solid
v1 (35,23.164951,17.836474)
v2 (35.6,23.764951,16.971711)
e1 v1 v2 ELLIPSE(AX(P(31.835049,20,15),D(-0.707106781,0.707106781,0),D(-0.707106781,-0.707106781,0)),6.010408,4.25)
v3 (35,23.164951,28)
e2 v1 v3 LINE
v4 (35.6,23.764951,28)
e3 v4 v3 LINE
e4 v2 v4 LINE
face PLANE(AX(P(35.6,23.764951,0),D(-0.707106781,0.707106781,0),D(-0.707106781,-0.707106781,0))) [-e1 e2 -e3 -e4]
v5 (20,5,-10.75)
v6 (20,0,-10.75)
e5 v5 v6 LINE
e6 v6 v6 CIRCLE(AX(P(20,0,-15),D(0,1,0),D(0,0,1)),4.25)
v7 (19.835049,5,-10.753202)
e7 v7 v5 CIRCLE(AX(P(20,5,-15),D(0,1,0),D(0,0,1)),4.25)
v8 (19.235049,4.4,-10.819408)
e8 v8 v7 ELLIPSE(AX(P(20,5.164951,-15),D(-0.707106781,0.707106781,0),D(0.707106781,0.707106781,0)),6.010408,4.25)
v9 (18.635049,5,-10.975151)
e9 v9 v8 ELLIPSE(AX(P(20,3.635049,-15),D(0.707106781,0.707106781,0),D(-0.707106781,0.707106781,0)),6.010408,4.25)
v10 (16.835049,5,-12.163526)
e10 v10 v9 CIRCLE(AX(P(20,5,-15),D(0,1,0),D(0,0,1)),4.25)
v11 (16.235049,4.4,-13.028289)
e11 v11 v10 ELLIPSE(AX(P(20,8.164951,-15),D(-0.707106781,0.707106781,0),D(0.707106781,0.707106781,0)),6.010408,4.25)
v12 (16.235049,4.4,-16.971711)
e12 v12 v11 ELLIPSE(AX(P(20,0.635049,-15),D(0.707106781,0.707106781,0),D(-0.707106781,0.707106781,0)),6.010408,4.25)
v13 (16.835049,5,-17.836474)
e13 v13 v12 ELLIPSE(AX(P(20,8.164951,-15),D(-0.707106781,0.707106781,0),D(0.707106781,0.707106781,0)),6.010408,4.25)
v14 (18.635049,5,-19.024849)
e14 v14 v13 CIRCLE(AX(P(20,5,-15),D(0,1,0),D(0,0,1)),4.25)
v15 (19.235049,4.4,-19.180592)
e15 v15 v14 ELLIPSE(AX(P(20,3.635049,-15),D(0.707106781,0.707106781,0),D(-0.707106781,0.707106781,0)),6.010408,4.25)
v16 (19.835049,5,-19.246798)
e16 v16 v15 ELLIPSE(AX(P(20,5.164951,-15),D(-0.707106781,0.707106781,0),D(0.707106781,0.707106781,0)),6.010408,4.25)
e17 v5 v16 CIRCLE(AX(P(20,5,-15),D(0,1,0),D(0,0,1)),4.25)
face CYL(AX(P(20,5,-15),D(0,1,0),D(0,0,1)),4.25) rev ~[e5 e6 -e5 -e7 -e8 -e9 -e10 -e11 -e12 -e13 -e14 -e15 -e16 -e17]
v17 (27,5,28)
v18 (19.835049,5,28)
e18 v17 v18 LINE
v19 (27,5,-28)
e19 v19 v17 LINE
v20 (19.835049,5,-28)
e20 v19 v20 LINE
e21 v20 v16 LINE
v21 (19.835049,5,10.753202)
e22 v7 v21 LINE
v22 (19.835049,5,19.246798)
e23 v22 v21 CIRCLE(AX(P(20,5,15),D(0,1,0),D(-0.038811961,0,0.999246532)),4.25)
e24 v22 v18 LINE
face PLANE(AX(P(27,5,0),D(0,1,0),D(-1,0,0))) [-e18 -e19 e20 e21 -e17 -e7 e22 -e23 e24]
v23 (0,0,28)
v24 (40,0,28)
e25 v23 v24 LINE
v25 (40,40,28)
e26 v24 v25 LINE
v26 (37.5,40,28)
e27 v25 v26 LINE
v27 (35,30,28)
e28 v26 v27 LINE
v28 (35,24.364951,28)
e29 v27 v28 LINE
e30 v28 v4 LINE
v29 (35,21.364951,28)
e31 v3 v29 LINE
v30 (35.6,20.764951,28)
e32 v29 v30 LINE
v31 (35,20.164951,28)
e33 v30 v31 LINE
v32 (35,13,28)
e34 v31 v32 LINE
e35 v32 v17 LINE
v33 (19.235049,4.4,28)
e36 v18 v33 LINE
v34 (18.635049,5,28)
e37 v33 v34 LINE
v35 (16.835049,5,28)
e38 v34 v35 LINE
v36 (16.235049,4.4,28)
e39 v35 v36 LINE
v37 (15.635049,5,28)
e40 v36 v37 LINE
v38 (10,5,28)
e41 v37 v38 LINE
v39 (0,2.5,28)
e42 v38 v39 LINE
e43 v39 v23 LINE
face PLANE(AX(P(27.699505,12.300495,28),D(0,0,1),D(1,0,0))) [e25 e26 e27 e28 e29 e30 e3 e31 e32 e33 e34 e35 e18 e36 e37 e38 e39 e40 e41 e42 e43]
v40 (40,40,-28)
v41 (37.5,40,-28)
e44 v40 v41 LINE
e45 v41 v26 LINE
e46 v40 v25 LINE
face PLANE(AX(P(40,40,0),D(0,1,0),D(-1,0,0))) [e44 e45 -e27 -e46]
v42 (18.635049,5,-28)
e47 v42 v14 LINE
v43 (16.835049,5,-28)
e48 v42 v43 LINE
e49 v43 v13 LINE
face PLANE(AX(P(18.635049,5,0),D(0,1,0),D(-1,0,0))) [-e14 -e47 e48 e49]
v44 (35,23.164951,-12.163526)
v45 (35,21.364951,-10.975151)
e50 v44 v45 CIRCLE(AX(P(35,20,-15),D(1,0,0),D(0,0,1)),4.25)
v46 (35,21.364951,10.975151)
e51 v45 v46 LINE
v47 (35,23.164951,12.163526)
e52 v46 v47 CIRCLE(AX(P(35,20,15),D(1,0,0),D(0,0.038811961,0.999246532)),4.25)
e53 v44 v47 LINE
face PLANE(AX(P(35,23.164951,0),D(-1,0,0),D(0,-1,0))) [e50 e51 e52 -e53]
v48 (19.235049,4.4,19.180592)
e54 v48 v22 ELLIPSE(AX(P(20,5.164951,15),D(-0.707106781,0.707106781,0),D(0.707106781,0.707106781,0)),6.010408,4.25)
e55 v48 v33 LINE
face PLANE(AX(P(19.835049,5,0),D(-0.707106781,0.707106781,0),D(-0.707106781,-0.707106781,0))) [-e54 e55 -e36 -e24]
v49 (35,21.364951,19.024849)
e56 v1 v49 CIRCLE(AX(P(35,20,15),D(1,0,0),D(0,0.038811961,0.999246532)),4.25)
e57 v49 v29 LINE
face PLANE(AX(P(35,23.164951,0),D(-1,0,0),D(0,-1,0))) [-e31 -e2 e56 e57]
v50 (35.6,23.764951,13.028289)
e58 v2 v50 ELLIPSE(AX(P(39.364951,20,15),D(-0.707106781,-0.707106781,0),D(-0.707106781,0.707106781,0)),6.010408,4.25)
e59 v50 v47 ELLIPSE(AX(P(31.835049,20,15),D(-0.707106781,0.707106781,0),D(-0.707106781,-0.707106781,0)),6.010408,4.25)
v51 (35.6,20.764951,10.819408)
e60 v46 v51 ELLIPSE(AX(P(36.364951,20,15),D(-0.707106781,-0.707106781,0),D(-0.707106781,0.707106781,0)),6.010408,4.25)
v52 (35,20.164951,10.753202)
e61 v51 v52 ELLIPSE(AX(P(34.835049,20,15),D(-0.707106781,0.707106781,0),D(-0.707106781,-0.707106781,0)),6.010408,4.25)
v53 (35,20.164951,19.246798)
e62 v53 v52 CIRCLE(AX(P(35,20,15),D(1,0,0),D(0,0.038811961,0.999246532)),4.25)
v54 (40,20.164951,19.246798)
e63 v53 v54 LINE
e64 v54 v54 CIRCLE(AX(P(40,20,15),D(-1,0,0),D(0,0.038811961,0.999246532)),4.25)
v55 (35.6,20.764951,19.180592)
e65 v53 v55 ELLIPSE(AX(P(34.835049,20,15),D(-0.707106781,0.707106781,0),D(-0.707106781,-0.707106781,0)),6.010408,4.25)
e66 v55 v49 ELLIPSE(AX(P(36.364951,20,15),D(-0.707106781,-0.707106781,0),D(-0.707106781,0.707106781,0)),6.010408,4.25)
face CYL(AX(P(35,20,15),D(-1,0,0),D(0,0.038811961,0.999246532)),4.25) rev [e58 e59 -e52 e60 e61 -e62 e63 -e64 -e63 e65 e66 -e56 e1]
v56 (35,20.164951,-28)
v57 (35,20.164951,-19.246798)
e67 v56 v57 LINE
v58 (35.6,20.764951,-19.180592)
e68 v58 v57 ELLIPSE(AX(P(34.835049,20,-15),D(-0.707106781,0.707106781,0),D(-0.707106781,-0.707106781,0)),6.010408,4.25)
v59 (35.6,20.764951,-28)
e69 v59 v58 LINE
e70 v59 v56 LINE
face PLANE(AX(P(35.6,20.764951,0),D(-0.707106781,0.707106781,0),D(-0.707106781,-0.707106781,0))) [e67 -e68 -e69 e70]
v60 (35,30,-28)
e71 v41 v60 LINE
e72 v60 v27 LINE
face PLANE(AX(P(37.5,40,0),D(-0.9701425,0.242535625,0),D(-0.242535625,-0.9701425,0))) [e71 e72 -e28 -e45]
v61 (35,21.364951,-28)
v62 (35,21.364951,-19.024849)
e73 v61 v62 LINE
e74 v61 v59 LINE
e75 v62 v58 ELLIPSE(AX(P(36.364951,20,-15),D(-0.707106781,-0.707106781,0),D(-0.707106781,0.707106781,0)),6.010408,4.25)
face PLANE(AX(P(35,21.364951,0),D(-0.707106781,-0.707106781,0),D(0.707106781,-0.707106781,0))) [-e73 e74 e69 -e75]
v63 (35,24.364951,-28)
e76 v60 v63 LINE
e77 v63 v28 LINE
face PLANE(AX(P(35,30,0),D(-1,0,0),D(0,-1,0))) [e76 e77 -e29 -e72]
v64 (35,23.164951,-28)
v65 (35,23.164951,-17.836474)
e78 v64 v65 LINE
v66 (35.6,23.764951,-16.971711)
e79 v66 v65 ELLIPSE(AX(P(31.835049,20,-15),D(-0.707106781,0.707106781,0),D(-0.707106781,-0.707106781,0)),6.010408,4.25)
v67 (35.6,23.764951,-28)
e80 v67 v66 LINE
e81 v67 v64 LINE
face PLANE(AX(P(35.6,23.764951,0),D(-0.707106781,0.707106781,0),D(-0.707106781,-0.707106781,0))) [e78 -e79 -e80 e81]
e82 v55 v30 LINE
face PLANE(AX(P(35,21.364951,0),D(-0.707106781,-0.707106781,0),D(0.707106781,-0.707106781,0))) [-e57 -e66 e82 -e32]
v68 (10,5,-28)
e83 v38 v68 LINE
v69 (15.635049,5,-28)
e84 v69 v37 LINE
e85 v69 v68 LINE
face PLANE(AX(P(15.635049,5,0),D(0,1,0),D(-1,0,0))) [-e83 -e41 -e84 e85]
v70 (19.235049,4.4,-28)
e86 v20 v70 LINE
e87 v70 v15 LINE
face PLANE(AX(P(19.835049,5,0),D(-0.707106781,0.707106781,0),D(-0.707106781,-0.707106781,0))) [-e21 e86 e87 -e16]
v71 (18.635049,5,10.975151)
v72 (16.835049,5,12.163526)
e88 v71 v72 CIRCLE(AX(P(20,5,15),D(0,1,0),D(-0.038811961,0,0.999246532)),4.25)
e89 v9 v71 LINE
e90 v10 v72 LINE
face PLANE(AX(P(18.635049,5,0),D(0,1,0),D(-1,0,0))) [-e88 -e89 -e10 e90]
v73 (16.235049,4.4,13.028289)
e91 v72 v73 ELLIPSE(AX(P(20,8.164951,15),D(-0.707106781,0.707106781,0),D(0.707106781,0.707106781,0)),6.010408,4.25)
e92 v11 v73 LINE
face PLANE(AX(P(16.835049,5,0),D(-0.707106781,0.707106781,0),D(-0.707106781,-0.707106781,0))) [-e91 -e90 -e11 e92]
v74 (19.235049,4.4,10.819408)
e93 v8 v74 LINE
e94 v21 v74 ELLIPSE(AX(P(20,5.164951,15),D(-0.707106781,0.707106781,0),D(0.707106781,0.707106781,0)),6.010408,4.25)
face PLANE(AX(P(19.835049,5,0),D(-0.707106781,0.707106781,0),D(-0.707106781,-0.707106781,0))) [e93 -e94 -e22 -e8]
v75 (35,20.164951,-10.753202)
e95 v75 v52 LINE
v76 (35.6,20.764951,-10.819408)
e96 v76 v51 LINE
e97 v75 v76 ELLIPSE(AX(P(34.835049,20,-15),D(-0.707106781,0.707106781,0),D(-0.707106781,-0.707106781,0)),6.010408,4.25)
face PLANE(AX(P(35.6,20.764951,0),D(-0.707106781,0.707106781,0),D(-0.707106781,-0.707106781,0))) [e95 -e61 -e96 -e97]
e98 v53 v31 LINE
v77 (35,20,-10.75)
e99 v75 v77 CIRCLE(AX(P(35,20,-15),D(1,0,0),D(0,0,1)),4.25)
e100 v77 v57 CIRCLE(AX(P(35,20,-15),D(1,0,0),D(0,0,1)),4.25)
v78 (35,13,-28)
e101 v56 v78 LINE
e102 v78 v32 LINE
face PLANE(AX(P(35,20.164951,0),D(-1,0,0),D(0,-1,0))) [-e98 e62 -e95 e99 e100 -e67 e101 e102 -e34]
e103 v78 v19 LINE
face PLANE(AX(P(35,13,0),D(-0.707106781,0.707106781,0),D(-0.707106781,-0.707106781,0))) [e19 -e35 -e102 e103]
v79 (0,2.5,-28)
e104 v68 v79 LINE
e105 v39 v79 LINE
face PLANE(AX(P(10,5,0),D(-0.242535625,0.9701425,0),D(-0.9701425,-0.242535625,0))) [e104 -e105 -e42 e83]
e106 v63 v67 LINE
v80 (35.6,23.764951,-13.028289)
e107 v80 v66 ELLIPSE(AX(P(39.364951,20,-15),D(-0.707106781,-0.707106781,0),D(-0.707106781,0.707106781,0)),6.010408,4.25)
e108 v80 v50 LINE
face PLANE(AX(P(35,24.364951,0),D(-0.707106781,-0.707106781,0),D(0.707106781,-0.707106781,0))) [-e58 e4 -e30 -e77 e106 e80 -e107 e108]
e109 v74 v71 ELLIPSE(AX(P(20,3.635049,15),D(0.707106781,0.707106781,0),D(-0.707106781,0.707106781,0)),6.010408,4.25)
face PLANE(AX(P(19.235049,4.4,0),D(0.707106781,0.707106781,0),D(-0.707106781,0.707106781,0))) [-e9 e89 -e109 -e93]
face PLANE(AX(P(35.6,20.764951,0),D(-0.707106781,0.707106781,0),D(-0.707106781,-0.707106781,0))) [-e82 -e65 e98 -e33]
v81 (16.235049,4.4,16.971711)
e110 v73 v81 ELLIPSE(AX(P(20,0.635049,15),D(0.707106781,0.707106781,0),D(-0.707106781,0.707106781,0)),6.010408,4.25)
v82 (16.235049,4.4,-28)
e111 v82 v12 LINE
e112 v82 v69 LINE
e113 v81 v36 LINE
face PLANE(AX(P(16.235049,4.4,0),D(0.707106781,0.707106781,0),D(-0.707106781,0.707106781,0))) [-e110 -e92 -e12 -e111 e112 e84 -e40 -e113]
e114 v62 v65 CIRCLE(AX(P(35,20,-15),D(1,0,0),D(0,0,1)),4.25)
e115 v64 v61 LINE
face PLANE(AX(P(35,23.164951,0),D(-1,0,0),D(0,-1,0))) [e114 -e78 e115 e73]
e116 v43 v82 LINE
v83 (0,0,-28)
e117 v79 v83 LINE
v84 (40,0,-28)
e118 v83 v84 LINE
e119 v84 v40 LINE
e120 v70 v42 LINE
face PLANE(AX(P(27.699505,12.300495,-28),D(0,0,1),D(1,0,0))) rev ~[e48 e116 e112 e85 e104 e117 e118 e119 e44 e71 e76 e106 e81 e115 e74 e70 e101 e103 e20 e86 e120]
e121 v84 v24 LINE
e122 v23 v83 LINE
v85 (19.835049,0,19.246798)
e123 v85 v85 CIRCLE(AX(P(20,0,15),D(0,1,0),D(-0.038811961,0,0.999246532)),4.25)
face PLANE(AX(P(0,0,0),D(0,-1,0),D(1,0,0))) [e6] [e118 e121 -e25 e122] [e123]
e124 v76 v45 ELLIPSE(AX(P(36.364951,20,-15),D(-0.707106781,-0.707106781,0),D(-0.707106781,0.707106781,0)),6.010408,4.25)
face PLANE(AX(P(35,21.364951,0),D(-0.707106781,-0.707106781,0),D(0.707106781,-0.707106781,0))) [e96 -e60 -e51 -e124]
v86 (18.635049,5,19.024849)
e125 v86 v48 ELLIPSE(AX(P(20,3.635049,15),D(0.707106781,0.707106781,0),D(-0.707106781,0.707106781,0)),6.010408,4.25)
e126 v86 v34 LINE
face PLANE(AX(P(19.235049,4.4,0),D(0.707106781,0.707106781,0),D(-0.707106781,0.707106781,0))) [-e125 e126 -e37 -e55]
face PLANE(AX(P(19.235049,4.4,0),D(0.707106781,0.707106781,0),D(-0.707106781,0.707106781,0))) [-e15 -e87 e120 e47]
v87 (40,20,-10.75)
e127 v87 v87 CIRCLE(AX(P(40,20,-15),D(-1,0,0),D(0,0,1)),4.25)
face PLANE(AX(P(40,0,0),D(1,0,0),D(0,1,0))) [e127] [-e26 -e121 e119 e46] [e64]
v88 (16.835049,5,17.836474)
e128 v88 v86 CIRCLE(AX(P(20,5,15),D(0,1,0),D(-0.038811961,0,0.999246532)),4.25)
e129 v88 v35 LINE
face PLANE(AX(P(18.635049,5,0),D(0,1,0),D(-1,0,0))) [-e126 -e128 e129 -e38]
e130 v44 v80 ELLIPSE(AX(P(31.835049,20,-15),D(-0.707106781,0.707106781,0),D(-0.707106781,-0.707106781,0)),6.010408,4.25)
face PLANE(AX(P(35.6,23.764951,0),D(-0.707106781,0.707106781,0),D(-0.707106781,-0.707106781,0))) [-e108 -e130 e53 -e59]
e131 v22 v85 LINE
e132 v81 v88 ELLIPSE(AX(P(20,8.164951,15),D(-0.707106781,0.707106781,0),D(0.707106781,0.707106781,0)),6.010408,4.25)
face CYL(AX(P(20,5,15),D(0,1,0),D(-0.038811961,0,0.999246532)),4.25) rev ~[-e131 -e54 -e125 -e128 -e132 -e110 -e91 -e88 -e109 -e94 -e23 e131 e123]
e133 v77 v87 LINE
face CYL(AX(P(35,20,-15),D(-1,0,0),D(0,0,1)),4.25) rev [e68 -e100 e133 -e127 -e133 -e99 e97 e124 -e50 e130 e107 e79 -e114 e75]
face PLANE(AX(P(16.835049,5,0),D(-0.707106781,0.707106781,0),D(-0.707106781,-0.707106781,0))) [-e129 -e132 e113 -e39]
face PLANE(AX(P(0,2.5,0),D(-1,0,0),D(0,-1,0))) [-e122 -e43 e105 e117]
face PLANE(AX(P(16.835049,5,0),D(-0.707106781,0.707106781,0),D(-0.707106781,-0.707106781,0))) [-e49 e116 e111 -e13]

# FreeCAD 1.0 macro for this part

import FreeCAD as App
import Part
import Sketcher
from FreeCAD import Vector
Q = App.Units.Quantity

doc = App.newDocument("Part")
body = doc.addObject("PartDesign::Body", "Body")

sketch1 = body.newObject("Sketcher::SketchObject", "Sketch")
sketch1.AttachmentSupport = (doc.getObject("XY_Plane"), [""])
sketch1.MapMode = "FlatFace"
sketch1.addGeometry([
    Part.LineSegment(Vector(0, 0, 0), Vector(40, 0, 0)),
    Part.LineSegment(Vector(40, 0, 0), Vector(40, 40, 0)),
    Part.LineSegment(Vector(40, 40, 0), Vector(37.5, 40, 0)),
    Part.LineSegment(Vector(37.5, 40, 0), Vector(35, 30, 0)),
    Part.LineSegment(Vector(35, 30, 0), Vector(35, 24.4, 0)),
    Part.LineSegment(Vector(35, 24.4, 0), Vector(35.6, 23.8, 0)),
    Part.LineSegment(Vector(35.6, 23.8, 0), Vector(35, 23.2, 0)),
    Part.LineSegment(Vector(35, 23.2, 0), Vector(35, 21.4, 0)),
    Part.LineSegment(Vector(35, 21.4, 0), Vector(35.6, 20.8, 0)),
    Part.LineSegment(Vector(35.6, 20.8, 0), Vector(35, 20.2, 0)),
    Part.LineSegment(Vector(35, 20.2, 0), Vector(35, 13, 0)),
    Part.LineSegment(Vector(35, 13, 0), Vector(27, 5, 0)),
    Part.LineSegment(Vector(27, 5, 0), Vector(19.8, 5, 0)),
    Part.LineSegment(Vector(19.8, 5, 0), Vector(19.2, 4.4, 0)),
    Part.LineSegment(Vector(19.2, 4.4, 0), Vector(18.6, 5, 0)),
    Part.LineSegment(Vector(18.6, 5, 0), Vector(16.8, 5, 0)),
    Part.LineSegment(Vector(16.8, 5, 0), Vector(16.2, 4.4, 0)),
    Part.LineSegment(Vector(16.2, 4.4, 0), Vector(15.6, 5, 0)),
    Part.LineSegment(Vector(15.6, 5, 0), Vector(10, 5, 0)),
    Part.LineSegment(Vector(10, 5, 0), Vector(0, 2.5, 0)),
    Part.LineSegment(Vector(0, 2.5, 0), Vector(0, 0, 0)),
], False)
sketch1.addConstraint([
    Sketcher.Constraint("Coincident", 0, 2, 1, 1),
    Sketcher.Constraint("Coincident", 1, 2, 2, 1),
    Sketcher.Constraint("Coincident", 2, 2, 3, 1),
    Sketcher.Constraint("Coincident", 3, 2, 4, 1),
    Sketcher.Constraint("Coincident", 4, 2, 5, 1),
    Sketcher.Constraint("Coincident", 5, 2, 6, 1),
    Sketcher.Constraint("Coincident", 6, 2, 7, 1),
    Sketcher.Constraint("Coincident", 7, 2, 8, 1),
    Sketcher.Constraint("Coincident", 8, 2, 9, 1),
    Sketcher.Constraint("Coincident", 9, 2, 10, 1),
    Sketcher.Constraint("Coincident", 10, 2, 11, 1),
    Sketcher.Constraint("Coincident", 11, 2, 12, 1),
    Sketcher.Constraint("Coincident", 12, 2, 13, 1),
    Sketcher.Constraint("Coincident", 13, 2, 14, 1),
    Sketcher.Constraint("Coincident", 14, 2, 15, 1),
    Sketcher.Constraint("Coincident", 15, 2, 16, 1),
    Sketcher.Constraint("Coincident", 16, 2, 17, 1),
    Sketcher.Constraint("Coincident", 17, 2, 18, 1),
    Sketcher.Constraint("Coincident", 18, 2, 19, 1),
    Sketcher.Constraint("Coincident", 19, 2, 20, 1),
    Sketcher.Constraint("Coincident", 20, 2, 0, 1),
    Sketcher.Constraint("Horizontal", 0),
    Sketcher.Constraint("Vertical", 1),
    Sketcher.Constraint("Horizontal", 2),
    Sketcher.Constraint("Vertical", 4),
    Sketcher.Constraint("Vertical", 7),
    Sketcher.Constraint("Vertical", 10),
    Sketcher.Constraint("Horizontal", 12),
    Sketcher.Constraint("Horizontal", 15),
    Sketcher.Constraint("Horizontal", 18),
    Sketcher.Constraint("Vertical", 20),
    Sketcher.Constraint("Coincident", 20, 2, -1, 1),
    Sketcher.Constraint("Perpendicular", 5, 6),
    Sketcher.Constraint("Perpendicular", 6, 8),
    Sketcher.Constraint("Perpendicular", 8, 9),
    Sketcher.Constraint("Parallel", 9, 11),
    Sketcher.Constraint("Parallel", 11, 13),
    Sketcher.Constraint("Perpendicular", 13, 14),
    Sketcher.Constraint("Perpendicular", 14, 16),
    Sketcher.Constraint("Perpendicular", 16, 17),
    Sketcher.Constraint("Horizontal", 12, 2, 14, 2),
    Sketcher.Constraint("Horizontal", 13, 2, 16, 2),
    Sketcher.Constraint("Horizontal", 15, 2, 17, 2),
    Sketcher.Constraint("Vertical", 4, 2, 6, 2),
    Sketcher.Constraint("Vertical", 5, 2, 8, 2),
    Sketcher.Constraint("Vertical", 7, 2, 9, 2),
    Sketcher.Constraint("Equal", 0, 1),
    Sketcher.Constraint("Equal", 18, 4),
    Sketcher.Constraint("Equal", 15, 7),
    Sketcher.Constraint("Equal", 12, 10),
    Sketcher.Constraint("Equal", 2, 20),
    Sketcher.Constraint("Equal", 5, 6),
    Sketcher.Constraint("Equal", 9, 13),
    Sketcher.Constraint("Equal", 3, 19),
    Sketcher.Constraint("DistanceX", 0, 1, 0, 2, Q("40 mm")),
    Sketcher.Constraint("DistanceX", 2, 2, 2, 1, Q("2.5 mm")),
    Sketcher.Constraint("DistanceX", 15, 2, 15, 1, Q("1.8 mm")),
    Sketcher.Constraint("DistanceX", -1, 1, 3, 2, Q("35 mm")),
    Sketcher.Constraint("DistanceY", -1, 1, 3, 2, Q("30 mm")),
    Sketcher.Constraint("DistanceY", -1, 1, 10, 2, Q("13 mm")),
    Sketcher.Constraint("DistanceY", 7, 2, 4, 2, Q("3 mm")),
    Sketcher.Constraint("DistanceX", 12, 2, 12, 1, Q("7.164951 mm")),
])
pad1 = body.newObject("PartDesign::Pad", "Pad")
pad1.Profile = sketch1
pad1.Length = 56
pad1.Midplane = True

sketch2 = body.newObject("Sketcher::SketchObject", "Sketch001")
sketch2.AttachmentSupport = (doc.getObject("XZ_Plane"), [""])
sketch2.MapMode = "FlatFace"
sketch2.AttachmentOffset = App.Placement(Vector(0, 0, -5), App.Rotation())
sketch2.addGeometry([
    Part.Circle(Vector(20, -15, 0), Vector(0, 0, 1), 4.2),
    Part.Circle(Vector(20, 15, 0), Vector(0, 0, 1), 4.2),
], False)
sketch2.addConstraint([
    Sketcher.Constraint("Equal", 0, 1),
    Sketcher.Constraint("Symmetric", 0, 3, 1, 3, -1),
    Sketcher.Constraint("Diameter", 0, Q("8.5 mm")),
    Sketcher.Constraint("DistanceX", -1, 1, 0, 3, Q("20 mm")),
    Sketcher.Constraint("DistanceY", 0, 3, -1, 1, Q("15 mm")),
])
pocket1 = body.newObject("PartDesign::Pocket", "Pocket")
pocket1.Profile = sketch2
pocket1.Type = "ThroughAll"
pocket1.Reversed = True
doc.recompute()

datumplane = body.newObject("PartDesign::Plane", "DatumPlane")
datumplane.Placement = App.Placement(Vector(20, 20, 0), App.Rotation(Vector(-0.707106781, 0.707106781, 0), Vector(0, 0, -1), Vector(-0.707106781, -0.707106781, 0), "ZXY"))
mirrored = body.newObject("PartDesign::Mirrored", "Mirrored")
mirrored.Originals = [pocket1]
mirrored.MirrorPlane = (datumplane, [""])
body.Tip = mirrored

doc.recompute()
